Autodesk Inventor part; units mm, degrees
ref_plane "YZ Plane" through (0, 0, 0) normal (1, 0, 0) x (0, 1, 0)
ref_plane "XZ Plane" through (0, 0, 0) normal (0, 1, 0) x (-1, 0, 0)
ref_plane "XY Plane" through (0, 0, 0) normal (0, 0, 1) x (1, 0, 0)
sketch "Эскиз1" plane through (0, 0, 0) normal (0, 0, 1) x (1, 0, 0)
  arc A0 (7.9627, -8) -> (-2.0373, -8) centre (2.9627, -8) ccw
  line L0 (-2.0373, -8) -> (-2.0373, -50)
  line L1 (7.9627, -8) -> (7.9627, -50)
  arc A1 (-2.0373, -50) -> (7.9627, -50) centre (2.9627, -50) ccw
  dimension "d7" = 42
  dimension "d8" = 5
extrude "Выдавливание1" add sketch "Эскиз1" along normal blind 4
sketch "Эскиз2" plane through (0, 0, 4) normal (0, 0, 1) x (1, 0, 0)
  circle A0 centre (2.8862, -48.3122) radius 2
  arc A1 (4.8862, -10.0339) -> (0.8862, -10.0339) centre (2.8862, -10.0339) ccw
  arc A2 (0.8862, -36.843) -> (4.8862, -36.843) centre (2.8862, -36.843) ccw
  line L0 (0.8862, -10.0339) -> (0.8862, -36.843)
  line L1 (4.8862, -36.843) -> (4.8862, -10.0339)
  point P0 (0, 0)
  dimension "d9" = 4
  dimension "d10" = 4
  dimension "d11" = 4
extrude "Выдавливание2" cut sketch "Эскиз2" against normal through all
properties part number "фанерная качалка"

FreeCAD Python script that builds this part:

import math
import FreeCAD as App
import Part
import Sketcher

V = App.Vector

doc = App.newDocument("Part")
body = doc.addObject("PartDesign::Body", "Body")

# Sketch on XY plane
sketch1 = doc.addObject("Sketcher::SketchObject", "Sketch")
body.addObject(sketch1)
sketch1.AttachmentSupport = (doc.XY_Plane, [""])
sketch1.MapMode = "FlatFace"
sketch1.addGeometry([
    Part.LineSegment(V(7.9627, -50, 0), V(7.9627, -8, 0)),
    Part.ArcOfCircle(Part.Circle(V(2.9627, -8, 0), V(0, 0, 1), 5), math.radians(0), math.radians(180)),
    Part.LineSegment(V(-2.0373, -8, 0), V(-2.0373, -50, 0)),
    Part.ArcOfCircle(Part.Circle(V(2.9627, -50, 0), V(0, 0, 1), 5), math.radians(180), math.radians(360)),
], False)
sketch1.addConstraint([
    Sketcher.Constraint("Tangent", 0, 2, 1, 1),
    Sketcher.Constraint("Tangent", 1, 2, 2, 1),
    Sketcher.Constraint("Tangent", 2, 2, 3, 1),
    Sketcher.Constraint("Tangent", 3, 2, 0, 1),
    Sketcher.Constraint("Vertical", 0),
    Sketcher.Constraint("Vertical", 2),
    Sketcher.Constraint("Radius", 1, 5.0),
    Sketcher.Constraint("DistanceY", 0, 1, 0, 2, 42.0),
    Sketcher.Constraint("DistanceY", 1, 3, -1, 1, 8.0),
    Sketcher.Constraint("DistanceX", -1, 1, 1, 3, 2.9627),
])
pad1 = doc.addObject("PartDesign::Pad", "Pad")
body.addObject(pad1)
pad1.Profile = sketch1
pad1.Length = 4

# Sketch on XY plane
sketch2 = doc.addObject("Sketcher::SketchObject", "Sketch001")
body.addObject(sketch2)
sketch2.AttachmentSupport = (doc.XY_Plane, [""])
sketch2.MapMode = "FlatFace"
sketch2.AttachmentOffset = App.Placement(V(0, 0, 4), App.Rotation())
sketch2.addGeometry([
    Part.Circle(V(2.8862, -48.3122, 0), V(0, 0, 1), 2),  # 0
    Part.LineSegment(V(4.8862, -36.843, 0), V(4.8862, -10.0339, 0)),  # 1
    Part.ArcOfCircle(Part.Circle(V(2.8862, -10.0339, 0), V(0, 0, 1), 2), math.radians(0), math.radians(180)),  # 2
    Part.LineSegment(V(0.8862, -10.0339, 0), V(0.8862, -36.843, 0)),  # 3
    Part.ArcOfCircle(Part.Circle(V(2.8862, -36.843, 0), V(0, 0, 1), 2), math.radians(180), math.radians(360)),  # 4
], False)
sketch2.addConstraint([
    Sketcher.Constraint("Tangent", 1, 2, 2, 1),
    Sketcher.Constraint("Tangent", 2, 2, 3, 1),
    Sketcher.Constraint("Tangent", 3, 2, 4, 1),
    Sketcher.Constraint("Tangent", 4, 2, 1, 1),
    Sketcher.Constraint("Vertical", 1),
    Sketcher.Constraint("Vertical", 3),
    Sketcher.Constraint("Equal", 0, 2),
    Sketcher.Constraint("Vertical", 0, 3, 2, 3),
    Sketcher.Constraint("Diameter", 0, 4.0),
    Sketcher.Constraint("DistanceY", 1, 1, 1, 2, 26.809),
    Sketcher.Constraint("DistanceY", 2, 3, -1, 1, 10.034),
    Sketcher.Constraint("DistanceX", -1, 1, 0, 3, 2.8862),
    Sketcher.Constraint("DistanceY", 0, 3, -1, 1, 48.3122),
])
pocket1 = doc.addObject("PartDesign::Pocket", "Pocket")
body.addObject(pocket1)
pocket1.Profile = sketch2
pocket1.Type = "ThroughAll"

doc.recompute()
